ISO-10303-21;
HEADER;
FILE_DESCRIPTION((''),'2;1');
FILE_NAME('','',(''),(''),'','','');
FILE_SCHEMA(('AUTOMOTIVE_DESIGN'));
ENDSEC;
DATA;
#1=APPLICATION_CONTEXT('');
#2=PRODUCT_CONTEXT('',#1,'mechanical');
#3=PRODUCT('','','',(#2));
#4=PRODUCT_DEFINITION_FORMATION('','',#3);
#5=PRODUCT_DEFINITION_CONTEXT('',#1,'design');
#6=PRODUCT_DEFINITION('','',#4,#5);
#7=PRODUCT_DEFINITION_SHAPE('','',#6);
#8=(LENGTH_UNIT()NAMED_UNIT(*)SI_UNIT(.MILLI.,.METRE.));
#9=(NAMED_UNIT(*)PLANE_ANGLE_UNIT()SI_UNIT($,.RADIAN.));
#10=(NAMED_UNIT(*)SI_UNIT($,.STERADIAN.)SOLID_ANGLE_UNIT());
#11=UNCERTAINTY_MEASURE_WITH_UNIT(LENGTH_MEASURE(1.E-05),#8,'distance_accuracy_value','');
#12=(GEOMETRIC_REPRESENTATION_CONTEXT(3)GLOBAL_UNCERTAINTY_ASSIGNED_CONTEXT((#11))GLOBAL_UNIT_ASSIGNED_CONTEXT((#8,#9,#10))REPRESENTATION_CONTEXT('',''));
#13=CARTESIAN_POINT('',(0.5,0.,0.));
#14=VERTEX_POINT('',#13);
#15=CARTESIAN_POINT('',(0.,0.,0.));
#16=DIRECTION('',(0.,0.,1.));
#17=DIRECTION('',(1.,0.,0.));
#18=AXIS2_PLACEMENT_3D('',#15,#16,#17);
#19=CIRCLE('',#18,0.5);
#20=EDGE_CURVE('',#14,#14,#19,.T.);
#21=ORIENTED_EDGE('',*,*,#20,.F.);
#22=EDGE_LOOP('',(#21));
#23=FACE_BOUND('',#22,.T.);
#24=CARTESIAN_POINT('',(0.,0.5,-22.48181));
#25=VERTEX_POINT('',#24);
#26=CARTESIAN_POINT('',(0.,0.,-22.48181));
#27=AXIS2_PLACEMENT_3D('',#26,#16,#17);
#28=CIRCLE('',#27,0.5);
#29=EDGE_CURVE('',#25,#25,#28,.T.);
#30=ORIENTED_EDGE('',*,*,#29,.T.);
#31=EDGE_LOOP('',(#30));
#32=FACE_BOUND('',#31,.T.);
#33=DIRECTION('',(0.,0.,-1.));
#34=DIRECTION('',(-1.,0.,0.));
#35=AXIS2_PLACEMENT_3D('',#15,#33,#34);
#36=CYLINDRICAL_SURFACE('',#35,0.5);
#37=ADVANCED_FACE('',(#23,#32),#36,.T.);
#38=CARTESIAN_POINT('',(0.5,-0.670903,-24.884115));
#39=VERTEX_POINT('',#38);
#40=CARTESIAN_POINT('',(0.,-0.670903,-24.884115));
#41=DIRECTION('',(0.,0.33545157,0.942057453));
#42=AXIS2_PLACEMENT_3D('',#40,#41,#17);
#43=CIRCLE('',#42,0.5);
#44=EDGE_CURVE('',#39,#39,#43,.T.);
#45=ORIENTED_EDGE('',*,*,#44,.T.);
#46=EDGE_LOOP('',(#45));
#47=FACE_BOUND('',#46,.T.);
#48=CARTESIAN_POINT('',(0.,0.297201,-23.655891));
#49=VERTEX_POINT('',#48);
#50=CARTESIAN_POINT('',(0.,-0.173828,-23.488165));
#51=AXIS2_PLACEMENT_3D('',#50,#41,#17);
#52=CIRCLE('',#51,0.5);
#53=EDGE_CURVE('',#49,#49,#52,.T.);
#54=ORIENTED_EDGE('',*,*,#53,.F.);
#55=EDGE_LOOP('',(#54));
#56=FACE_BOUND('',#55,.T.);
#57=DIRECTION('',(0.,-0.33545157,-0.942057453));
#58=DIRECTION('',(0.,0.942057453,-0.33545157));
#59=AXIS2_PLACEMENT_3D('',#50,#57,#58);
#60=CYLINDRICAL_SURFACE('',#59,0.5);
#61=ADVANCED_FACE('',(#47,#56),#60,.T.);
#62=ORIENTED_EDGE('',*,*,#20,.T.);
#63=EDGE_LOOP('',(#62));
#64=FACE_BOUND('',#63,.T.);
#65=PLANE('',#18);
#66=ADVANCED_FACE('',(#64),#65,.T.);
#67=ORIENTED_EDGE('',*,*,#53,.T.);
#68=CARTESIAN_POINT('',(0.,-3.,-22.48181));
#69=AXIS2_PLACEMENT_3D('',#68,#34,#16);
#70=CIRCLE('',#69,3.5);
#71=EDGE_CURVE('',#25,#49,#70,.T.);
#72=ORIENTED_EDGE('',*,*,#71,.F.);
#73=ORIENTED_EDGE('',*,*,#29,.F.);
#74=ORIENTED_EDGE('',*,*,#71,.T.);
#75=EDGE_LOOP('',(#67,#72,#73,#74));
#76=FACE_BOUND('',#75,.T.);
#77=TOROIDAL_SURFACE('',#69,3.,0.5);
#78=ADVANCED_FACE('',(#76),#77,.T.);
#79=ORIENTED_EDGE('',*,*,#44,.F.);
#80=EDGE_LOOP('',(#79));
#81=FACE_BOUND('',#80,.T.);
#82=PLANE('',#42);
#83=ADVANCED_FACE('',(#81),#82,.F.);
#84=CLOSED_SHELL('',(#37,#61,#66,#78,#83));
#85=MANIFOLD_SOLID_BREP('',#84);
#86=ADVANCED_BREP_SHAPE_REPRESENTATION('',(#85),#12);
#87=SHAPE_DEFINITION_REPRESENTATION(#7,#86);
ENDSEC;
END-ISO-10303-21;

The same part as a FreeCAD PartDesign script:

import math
import FreeCAD as App
import Part
import Sketcher
from FreeCAD import Vector
Q = App.Units.Quantity

doc = App.newDocument("Part")
body = doc.addObject("PartDesign::Body", "Body")

# Sketch on XY plane
sketch1 = body.newObject("Sketcher::SketchObject", "Sketch")
sketch1.AttachmentSupport = (doc.getObject("XY_Plane"), [""])
sketch1.MapMode = "FlatFace"
sketch1.addGeometry(Part.Circle(Vector(0, 0, 0), Vector(0, 0, 1), 0.5), False)
sketch1.addConstraint([
    Sketcher.Constraint("Coincident", 0, 3, -1, 1),
    Sketcher.Constraint("Diameter", 0, Q("1 mm")),
])

# Sketch on YZ plane
sketch2 = body.newObject("Sketcher::SketchObject", "Sketch001")
sketch2.AttachmentSupport = (doc.getObject("YZ_Plane"), [""])
sketch2.MapMode = "FlatFace"
sketch2.addGeometry([
    Part.LineSegment(Vector(0, 0, 0), Vector(0, -22.48181, 0)),
    Part.ArcOfCircle(Part.Circle(Vector(-3, -22.48181, 0), Vector(0, 0, 1), 3), math.radians(-19.6), math.radians(0)),
    Part.LineSegment(Vector(-0.173828, -23.488165, 0), Vector(-0.670903, -24.884115, 0)),
], False)
sketch2.addConstraint([
    Sketcher.Constraint("Tangent", 0, 2, 1, 2),
    Sketcher.Constraint("Tangent", 1, 1, 2, 1),
    Sketcher.Constraint("Vertical", 0),
    Sketcher.Constraint("Coincident", 0, 1, -1, 1),
    Sketcher.Constraint("Radius", 1, Q("3 mm")),
    Sketcher.Constraint("Angle", 2, Q("-109.6 deg")),
    Sketcher.Constraint("DistanceY", 0, 2, 0, 1, Q("22.48181 mm")),
    Sketcher.Constraint("Distance", 2, Q("1.48181 mm")),
])
doc.recompute()

additivepipe = body.newObject("PartDesign::AdditivePipe", "AdditivePipe")
additivepipe.Profile = sketch1
additivepipe.Spine = (sketch2, ["Edge1", "Edge2", "Edge3"])

doc.recompute()
